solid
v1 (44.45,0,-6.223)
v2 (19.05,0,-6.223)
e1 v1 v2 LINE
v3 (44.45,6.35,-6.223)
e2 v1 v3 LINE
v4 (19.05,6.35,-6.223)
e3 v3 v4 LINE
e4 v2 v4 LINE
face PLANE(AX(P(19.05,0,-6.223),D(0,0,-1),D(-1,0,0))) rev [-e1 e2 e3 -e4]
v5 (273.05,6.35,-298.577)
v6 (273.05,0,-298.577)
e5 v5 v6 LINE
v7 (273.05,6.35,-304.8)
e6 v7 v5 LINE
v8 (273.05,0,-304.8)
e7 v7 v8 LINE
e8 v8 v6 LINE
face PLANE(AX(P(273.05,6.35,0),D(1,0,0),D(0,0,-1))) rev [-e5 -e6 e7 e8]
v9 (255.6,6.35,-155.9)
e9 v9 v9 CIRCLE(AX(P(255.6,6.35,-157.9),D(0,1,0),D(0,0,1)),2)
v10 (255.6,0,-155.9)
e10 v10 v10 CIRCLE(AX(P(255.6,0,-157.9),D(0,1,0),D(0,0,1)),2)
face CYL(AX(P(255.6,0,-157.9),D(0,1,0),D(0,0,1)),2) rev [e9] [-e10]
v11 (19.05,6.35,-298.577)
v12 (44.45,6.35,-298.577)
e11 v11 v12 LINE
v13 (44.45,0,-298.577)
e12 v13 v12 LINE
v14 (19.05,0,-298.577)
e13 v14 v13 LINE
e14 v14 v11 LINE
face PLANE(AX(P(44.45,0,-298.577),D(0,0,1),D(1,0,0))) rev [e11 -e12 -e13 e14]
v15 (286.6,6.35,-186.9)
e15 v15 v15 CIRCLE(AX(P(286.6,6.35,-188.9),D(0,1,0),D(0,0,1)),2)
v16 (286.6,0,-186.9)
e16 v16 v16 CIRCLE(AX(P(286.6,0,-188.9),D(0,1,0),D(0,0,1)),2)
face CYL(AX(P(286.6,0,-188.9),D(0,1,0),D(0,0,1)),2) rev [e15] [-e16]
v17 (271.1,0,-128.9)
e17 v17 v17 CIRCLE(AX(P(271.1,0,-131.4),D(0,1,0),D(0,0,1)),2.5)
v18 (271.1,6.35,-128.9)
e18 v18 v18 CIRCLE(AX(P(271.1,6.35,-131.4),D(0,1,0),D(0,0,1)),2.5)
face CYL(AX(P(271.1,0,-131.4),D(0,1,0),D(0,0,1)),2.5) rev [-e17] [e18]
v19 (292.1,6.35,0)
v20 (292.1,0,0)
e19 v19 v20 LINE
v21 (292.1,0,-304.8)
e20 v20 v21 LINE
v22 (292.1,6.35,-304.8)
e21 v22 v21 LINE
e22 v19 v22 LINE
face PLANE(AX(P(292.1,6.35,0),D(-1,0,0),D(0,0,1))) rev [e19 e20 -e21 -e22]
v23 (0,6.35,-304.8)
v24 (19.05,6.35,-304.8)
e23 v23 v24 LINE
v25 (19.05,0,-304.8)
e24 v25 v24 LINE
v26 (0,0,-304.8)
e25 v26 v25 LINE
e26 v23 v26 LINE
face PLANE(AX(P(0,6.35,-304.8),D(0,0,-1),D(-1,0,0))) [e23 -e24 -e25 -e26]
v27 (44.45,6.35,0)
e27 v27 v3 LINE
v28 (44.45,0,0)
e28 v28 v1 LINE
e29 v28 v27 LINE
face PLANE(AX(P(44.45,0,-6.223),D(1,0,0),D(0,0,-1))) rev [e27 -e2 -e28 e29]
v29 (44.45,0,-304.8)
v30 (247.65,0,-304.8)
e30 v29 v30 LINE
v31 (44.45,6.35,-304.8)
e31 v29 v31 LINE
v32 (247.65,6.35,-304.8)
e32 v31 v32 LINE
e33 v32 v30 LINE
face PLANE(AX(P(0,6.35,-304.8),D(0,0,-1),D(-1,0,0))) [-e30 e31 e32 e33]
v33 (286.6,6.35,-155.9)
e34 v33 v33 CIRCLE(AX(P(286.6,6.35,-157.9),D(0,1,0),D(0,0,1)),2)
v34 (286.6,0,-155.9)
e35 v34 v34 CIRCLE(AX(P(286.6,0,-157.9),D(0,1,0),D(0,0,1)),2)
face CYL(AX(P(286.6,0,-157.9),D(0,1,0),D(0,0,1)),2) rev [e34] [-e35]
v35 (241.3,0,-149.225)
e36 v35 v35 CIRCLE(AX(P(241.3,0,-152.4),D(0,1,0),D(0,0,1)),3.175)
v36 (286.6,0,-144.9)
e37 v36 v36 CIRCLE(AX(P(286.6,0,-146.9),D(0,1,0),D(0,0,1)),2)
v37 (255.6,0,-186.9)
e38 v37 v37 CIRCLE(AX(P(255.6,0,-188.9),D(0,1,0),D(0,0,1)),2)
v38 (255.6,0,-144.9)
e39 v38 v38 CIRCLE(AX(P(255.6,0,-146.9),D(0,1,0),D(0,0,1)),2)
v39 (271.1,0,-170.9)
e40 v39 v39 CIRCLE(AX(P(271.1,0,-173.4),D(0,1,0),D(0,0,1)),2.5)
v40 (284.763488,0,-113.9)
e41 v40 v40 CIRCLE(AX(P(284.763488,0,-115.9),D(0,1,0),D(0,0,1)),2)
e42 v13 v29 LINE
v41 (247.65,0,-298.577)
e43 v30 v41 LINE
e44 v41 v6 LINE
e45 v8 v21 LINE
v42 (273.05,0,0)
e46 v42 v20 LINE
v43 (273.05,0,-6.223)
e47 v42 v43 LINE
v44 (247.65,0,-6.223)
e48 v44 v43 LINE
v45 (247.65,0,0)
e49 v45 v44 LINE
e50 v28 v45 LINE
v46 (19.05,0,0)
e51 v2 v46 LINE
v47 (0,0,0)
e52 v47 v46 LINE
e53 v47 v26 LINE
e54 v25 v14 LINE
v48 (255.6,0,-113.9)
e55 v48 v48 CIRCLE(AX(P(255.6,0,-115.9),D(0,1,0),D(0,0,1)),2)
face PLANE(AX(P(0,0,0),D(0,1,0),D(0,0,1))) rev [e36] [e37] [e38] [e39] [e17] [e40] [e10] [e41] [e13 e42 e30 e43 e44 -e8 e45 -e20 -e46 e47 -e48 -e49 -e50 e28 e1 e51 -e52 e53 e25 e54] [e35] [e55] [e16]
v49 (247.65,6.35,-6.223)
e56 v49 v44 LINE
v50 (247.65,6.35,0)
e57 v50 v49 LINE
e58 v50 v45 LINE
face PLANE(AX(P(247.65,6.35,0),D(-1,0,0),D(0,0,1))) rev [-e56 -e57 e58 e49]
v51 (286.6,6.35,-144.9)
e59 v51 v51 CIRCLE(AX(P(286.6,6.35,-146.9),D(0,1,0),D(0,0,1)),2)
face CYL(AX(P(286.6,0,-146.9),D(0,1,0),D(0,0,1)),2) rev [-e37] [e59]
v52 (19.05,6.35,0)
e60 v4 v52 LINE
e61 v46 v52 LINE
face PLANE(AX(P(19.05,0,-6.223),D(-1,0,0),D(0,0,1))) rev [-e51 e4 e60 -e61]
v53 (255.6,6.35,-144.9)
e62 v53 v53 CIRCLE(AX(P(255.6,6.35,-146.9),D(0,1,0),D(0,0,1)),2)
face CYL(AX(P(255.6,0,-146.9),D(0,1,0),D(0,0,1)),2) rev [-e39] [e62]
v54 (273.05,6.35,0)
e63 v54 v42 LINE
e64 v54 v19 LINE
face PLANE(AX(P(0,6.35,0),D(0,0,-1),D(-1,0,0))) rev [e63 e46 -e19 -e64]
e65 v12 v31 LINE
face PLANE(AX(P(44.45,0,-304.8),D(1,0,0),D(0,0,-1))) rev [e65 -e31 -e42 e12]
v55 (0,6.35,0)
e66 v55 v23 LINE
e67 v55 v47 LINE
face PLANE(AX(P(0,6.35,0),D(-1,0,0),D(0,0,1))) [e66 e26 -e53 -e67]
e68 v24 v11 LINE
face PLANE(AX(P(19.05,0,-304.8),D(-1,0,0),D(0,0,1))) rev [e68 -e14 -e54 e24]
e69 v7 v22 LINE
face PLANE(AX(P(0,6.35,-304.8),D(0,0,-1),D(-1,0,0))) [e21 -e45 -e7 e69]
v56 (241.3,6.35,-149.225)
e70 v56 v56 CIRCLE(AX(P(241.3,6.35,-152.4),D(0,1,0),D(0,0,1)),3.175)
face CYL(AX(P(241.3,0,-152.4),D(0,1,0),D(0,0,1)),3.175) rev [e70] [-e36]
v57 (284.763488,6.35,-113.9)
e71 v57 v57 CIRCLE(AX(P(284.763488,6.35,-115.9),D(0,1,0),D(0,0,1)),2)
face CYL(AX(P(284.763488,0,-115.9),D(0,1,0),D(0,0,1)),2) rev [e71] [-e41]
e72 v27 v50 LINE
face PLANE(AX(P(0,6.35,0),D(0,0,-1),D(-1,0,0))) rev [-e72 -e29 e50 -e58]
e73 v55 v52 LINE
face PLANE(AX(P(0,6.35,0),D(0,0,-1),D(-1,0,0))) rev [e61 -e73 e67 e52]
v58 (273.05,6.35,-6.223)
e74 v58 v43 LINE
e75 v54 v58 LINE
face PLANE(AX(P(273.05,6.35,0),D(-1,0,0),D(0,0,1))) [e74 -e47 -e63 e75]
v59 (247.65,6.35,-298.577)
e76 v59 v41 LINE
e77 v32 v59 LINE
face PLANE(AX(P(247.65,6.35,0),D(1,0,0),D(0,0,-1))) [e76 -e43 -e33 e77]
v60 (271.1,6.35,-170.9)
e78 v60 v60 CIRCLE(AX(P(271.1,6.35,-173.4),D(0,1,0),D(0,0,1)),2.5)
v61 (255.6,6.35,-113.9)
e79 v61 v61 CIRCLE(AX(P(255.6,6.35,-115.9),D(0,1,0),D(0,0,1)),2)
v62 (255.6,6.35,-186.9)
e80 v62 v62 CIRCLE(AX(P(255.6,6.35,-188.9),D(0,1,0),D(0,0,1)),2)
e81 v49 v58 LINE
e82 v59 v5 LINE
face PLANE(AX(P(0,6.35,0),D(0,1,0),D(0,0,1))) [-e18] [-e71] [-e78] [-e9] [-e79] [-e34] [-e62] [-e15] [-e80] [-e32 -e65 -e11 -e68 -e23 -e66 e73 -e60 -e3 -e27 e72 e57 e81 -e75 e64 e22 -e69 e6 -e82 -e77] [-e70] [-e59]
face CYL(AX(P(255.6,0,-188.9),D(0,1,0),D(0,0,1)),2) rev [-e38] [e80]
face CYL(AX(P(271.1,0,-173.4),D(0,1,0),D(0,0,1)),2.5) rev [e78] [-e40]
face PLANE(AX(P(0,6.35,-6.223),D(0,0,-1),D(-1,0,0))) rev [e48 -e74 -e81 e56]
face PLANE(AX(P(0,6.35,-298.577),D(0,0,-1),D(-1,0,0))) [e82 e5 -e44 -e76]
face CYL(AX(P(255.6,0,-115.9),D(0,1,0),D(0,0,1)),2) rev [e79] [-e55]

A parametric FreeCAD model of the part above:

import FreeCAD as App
import Part
import Sketcher
from FreeCAD import Vector
Q = App.Units.Quantity


def add_polygon(sketch, points):
    """Adds a closed chain of lines whose ends are joined by coincident constraints."""
    first, n = sketch.GeometryCount, len(points)
    for a, b in zip(points, points[1:] + points[:1]):
        sketch.addGeometry(Part.LineSegment(App.Vector(*a, 0), App.Vector(*b, 0)), False)
    for i in range(n):
        sketch.addConstraint(Sketcher.Constraint("Coincident", first + i, 2, first + (i + 1) % n, 1))

doc = App.newDocument("Part")
body = doc.addObject("PartDesign::Body", "Body")

sketch1 = body.newObject("Sketcher::SketchObject", "Sketch")
sketch1.AttachmentSupport = (doc.getObject("XZ_Plane"), [""])
sketch1.MapMode = "FlatFace"
add_polygon(sketch1, [(292, 0), (292, -305), (273, -305), (273, -299), (248, -299), (248, -305), (0, -305), (0, 0), (248, 0), (248, -6), (273, -6), (273, 0)])
add_polygon(sketch1, [(229, -13), (13, -13), (13, -292), (229, -292)])
sketch1.addConstraint(Sketcher.Constraint("Vertical", 0))
sketch1.addConstraint(Sketcher.Constraint("Horizontal", 1))
sketch1.addConstraint(Sketcher.Constraint("Vertical", 2))
sketch1.addConstraint(Sketcher.Constraint("Horizontal", 3))
sketch1.addConstraint(Sketcher.Constraint("Vertical", 4))
sketch1.addConstraint(Sketcher.Constraint("Horizontal", 5))
sketch1.addConstraint(Sketcher.Constraint("Vertical", 6))
sketch1.addConstraint(Sketcher.Constraint("Horizontal", 7))
sketch1.addConstraint(Sketcher.Constraint("Vertical", 8))
sketch1.addConstraint(Sketcher.Constraint("Horizontal", 9))
sketch1.addConstraint(Sketcher.Constraint("Vertical", 10))
sketch1.addConstraint(Sketcher.Constraint("Horizontal", 11))
sketch1.addConstraint(Sketcher.Constraint("Horizontal", 12))
sketch1.addConstraint(Sketcher.Constraint("Vertical", 13))
sketch1.addConstraint(Sketcher.Constraint("Horizontal", 14))
sketch1.addConstraint(Sketcher.Constraint("Vertical", 15))
sketch1.addConstraint(Sketcher.Constraint("Coincident", 6, 2, -1, 1))
sketch1.addConstraint(Sketcher.Constraint("PointOnObject", 10, 2, -1))
sketch1.addConstraint(Sketcher.Constraint("Horizontal", 1, 2, 4, 2))
sketch1.addConstraint(Sketcher.Constraint("Vertical", 4, 2, 7, 2))
sketch1.addConstraint(Sketcher.Constraint("Vertical", 2, 2, 9, 2))
sketch1.addConstraint(Sketcher.Constraint("Equal", 4, 8))
sketch1.addConstraint(Sketcher.Constraint("DistanceX", 3, 2, 3, 1, Q("1 in")))
sketch1.addConstraint(Sketcher.Constraint("DistanceY", 0, 2, 0, 1, Q("12 in")))
sketch1.addConstraint(Sketcher.Constraint("DistanceY", 13, 2, 13, 1, Q("11 in")))
sketch1.addConstraint(Sketcher.Constraint("DistanceX", 12, 2, 12, 1, Q("8.5 in")))
sketch1.addConstraint(Sketcher.Constraint("DistanceX", -1, 1, 14, 2, Q("9 in")))
sketch1.addConstraint(Sketcher.Constraint("DistanceX", 1, 2, 1, 1, Q("0.75 in")))
sketch1.addConstraint(Sketcher.Constraint("DistanceX", 5, 2, 5, 1, Q("9.75 in")))
sketch1.addConstraint(Sketcher.Constraint("DistanceY", 12, 2, -1, 1, Q("0.5 in")))
sketch1.addConstraint(Sketcher.Constraint("DistanceY", 2, 1, 2, 2, Q("0.245 in")))
pad1 = body.newObject("PartDesign::Pad", "Pad")
pad1.Profile = sketch1
pad1.Length = Q("0.25 in")
pad1.Reversed = True

sketch2 = body.newObject("Sketcher::SketchObject", "Sketch001")
sketch2.AttachmentSupport = (doc.getObject("XZ_Plane"), [""])
sketch2.MapMode = "FlatFace"
sketch2.AttachmentOffset = App.Placement(Vector(0, 0, -0.25 * 25.4), App.Rotation())
sketch2.addGeometry(Part.Circle(Vector(286.6, -188.9, 0), Vector(0, 0, 1), 2), False)
sketch2.addGeometry(Part.Circle(Vector(286.6, -157.9, 0), Vector(0, 0, 1), 2), False)
sketch2.addGeometry(Part.Circle(Vector(255.6, -157.9, 0), Vector(0, 0, 1), 2), False)
sketch2.addGeometry(Part.Circle(Vector(255.6, -188.9, 0), Vector(0, 0, 1), 2), False)
sketch2.addGeometry(Part.Circle(Vector(255.6, -146.9, 0), Vector(0, 0, 1), 2), False)
sketch2.addGeometry(Part.Circle(Vector(286.6, -146.9, 0), Vector(0, 0, 1), 2), False)
sketch2.addGeometry(Part.Circle(Vector(284.8, -115.9, 0), Vector(0, 0, 1), 2), False)
sketch2.addGeometry(Part.Circle(Vector(255.6, -115.9, 0), Vector(0, 0, 1), 2), False)
sketch2.addGeometry(Part.Circle(Vector(271.1, -173.4, 0), Vector(0, 0, 1), 2.5), False)
sketch2.addGeometry(Part.Circle(Vector(271.1, -131.4, 0), Vector(0, 0, 1), 2.5), False)
sketch2.addGeometry(Part.Circle(Vector(241.3, -152.4, 0), Vector(0, 0, 1), 3.2), False)
add_polygon(sketch2, [(247.7, -304.8), (247.7, -298.6), (273.1, -298.6), (273.1, -304.8)])
add_polygon(sketch2, [(247.7, -6.2), (247.7, 0), (273.1, 0), (273.1, -6.2)])
add_polygon(sketch2, [(19.1, -6.2), (19.1, 0), (44.5, 0), (44.5, -6.2)])
add_polygon(sketch2, [(19.1, -304.8), (19.1, -298.6), (44.5, -298.6), (44.5, -304.8)])
sketch2.addConstraint(Sketcher.Constraint("Vertical", 11))
sketch2.addConstraint(Sketcher.Constraint("Horizontal", 12))
sketch2.addConstraint(Sketcher.Constraint("Vertical", 13))
sketch2.addConstraint(Sketcher.Constraint("Horizontal", 14))
sketch2.addConstraint(Sketcher.Constraint("Vertical", 15))
sketch2.addConstraint(Sketcher.Constraint("Horizontal", 16))
sketch2.addConstraint(Sketcher.Constraint("Vertical", 17))
sketch2.addConstraint(Sketcher.Constraint("Horizontal", 18))
sketch2.addConstraint(Sketcher.Constraint("Vertical", 19))
sketch2.addConstraint(Sketcher.Constraint("Horizontal", 20))
sketch2.addConstraint(Sketcher.Constraint("Vertical", 21))
sketch2.addConstraint(Sketcher.Constraint("Horizontal", 22))
sketch2.addConstraint(Sketcher.Constraint("Vertical", 23))
sketch2.addConstraint(Sketcher.Constraint("Horizontal", 24))
sketch2.addConstraint(Sketcher.Constraint("Vertical", 25))
sketch2.addConstraint(Sketcher.Constraint("Horizontal", 26))
sketch2.addConstraint(Sketcher.Constraint("Equal", 0, 1))
sketch2.addConstraint(Sketcher.Constraint("Equal", 1, 2))
sketch2.addConstraint(Sketcher.Constraint("Equal", 2, 3))
sketch2.addConstraint(Sketcher.Constraint("Equal", 3, 4))
sketch2.addConstraint(Sketcher.Constraint("Equal", 4, 5))
sketch2.addConstraint(Sketcher.Constraint("Equal", 5, 6))
sketch2.addConstraint(Sketcher.Constraint("Equal", 6, 7))
sketch2.addConstraint(Sketcher.Constraint("Equal", 8, 9))
sketch2.addConstraint(Sketcher.Constraint("PointOnObject", 15, 2, -1))
sketch2.addConstraint(Sketcher.Constraint("PointOnObject", 19, 2, -1))
sketch2.addConstraint(Sketcher.Constraint("Horizontal", 1, 3, 2, 3))
sketch2.addConstraint(Sketcher.Constraint("Horizontal", 0, 3, 3, 3))
sketch2.addConstraint(Sketcher.Constraint("Horizontal", 4, 3, 5, 3))
sketch2.addConstraint(Sketcher.Constraint("Horizontal", 6, 3, 7, 3))
sketch2.addConstraint(Sketcher.Constraint("Horizontal", 18, 2, 21, 2))
sketch2.addConstraint(Sketcher.Constraint("Horizontal", 12, 2, 23, 2))
sketch2.addConstraint(Sketcher.Constraint("Horizontal", 14, 2, 25, 2))
sketch2.addConstraint(Sketcher.Constraint("Vertical", 0, 3, 1, 3))
sketch2.addConstraint(Sketcher.Constraint("Vertical", 2, 3, 3, 3))
sketch2.addConstraint(Sketcher.Constraint("Vertical", 3, 3, 4, 3))
sketch2.addConstraint(Sketcher.Constraint("Vertical", 1, 3, 5, 3))
sketch2.addConstraint(Sketcher.Constraint("Vertical", 4, 3, 7, 3))
sketch2.addConstraint(Sketcher.Constraint("Vertical", 8, 3, 9, 3))
sketch2.addConstraint(Sketcher.Constraint("Vertical", 14, 2, 15, 2))
sketch2.addConstraint(Sketcher.Constraint("Vertical", 13, 2, 16, 2))
sketch2.addConstraint(Sketcher.Constraint("Vertical", 22, 2, 23, 2))
sketch2.addConstraint(Sketcher.Constraint("Vertical", 21, 2, 24, 2))
sketch2.addConstraint(Sketcher.Constraint("Equal", 18, 20))
sketch2.addConstraint(Sketcher.Constraint("Equal", 13, 15))
sketch2.addConstraint(Sketcher.Constraint("Diameter", 10, Q("0.25 in")))
sketch2.addConstraint(Sketcher.Constraint("DistanceX", 12, 1, 12, 2, Q("1 in")))
sketch2.addConstraint(Sketcher.Constraint("DistanceY", 10, 3, -1, 1, Q("6 in")))
sketch2.addConstraint(Sketcher.Constraint("DistanceY", 13, 2, -1, 1, Q("12 in")))
sketch2.addConstraint(Sketcher.Constraint("DistanceX", 19, 2, 15, 2, Q("9 in")))
sketch2.addConstraint(Sketcher.Constraint("DistanceX", -1, 1, 10, 3, Q("9.5 in")))
sketch2.addConstraint(Sketcher.Constraint("Diameter", 0, Q("4 mm")))
sketch2.addConstraint(Sketcher.Constraint("Diameter", 8, Q("5 mm")))
sketch2.addConstraint(Sketcher.Constraint("DistanceY", 11, 1, 11, 2, Q("0.245 in")))
sketch2.addConstraint(Sketcher.Constraint("DistanceX", -1, 1, 11, 2, Q("9.75 in")))
sketch2.addConstraint(Sketcher.Constraint("DistanceX", -1, 1, 0, 3, Q("286.6 mm")))
sketch2.addConstraint(Sketcher.Constraint("DistanceY", 0, 3, -1, 1, Q("188.9 mm")))
sketch2.addConstraint(Sketcher.Constraint("DistanceY", 1, 3, -1, 1, Q("157.9 mm")))
sketch2.addConstraint(Sketcher.Constraint("DistanceX", -1, 1, 2, 3, Q("255.6 mm")))
sketch2.addConstraint(Sketcher.Constraint("DistanceY", 4, 3, -1, 1, Q("146.9 mm")))
sketch2.addConstraint(Sketcher.Constraint("DistanceY", 6, 3, -1, 1, Q("115.9 mm")))
sketch2.addConstraint(Sketcher.Constraint("DistanceX", -1, 1, 8, 3, Q("271.1 mm")))
sketch2.addConstraint(Sketcher.Constraint("DistanceY", 8, 3, -1, 1, Q("173.4 mm")))
sketch2.addConstraint(Sketcher.Constraint("DistanceY", 9, 3, -1, 1, Q("131.4 mm")))
sketch2.addConstraint(Sketcher.Constraint("DistanceX", -1, 1, 6, 3, Q("284.763488 mm")))
pocket1 = body.newObject("PartDesign::Pocket", "Pocket")
pocket1.Profile = sketch2
pocket1.Type = "ThroughAll"
pocket1.Reversed = True

sketch3 = body.newObject("Sketcher::SketchObject", "Sketch002")
sketch3.AttachmentSupport = (doc.getObject("XZ_Plane"), [""])
sketch3.MapMode = "FlatFace"
sketch3.AttachmentOffset = App.Placement(Vector(0, 0, -0.25 * 25.4), App.Rotation())
add_polygon(sketch3, [(13, -292), (13, -13), (229, -13), (229, -292)])
sketch3.addConstraint(Sketcher.Constraint("Vertical", 0))
sketch3.addConstraint(Sketcher.Constraint("Horizontal", 1))
sketch3.addConstraint(Sketcher.Constraint("Vertical", 2))
sketch3.addConstraint(Sketcher.Constraint("Horizontal", 3))
sketch3.addConstraint(Sketcher.Constraint("DistanceY", 0, 1, 0, 2, Q("11 in")))
sketch3.addConstraint(Sketcher.Constraint("DistanceX", 1, 1, 1, 2, Q("8.5 in")))
sketch3.addConstraint(Sketcher.Constraint("DistanceX", -1, 1, 1, 2, Q("9 in")))
sketch3.addConstraint(Sketcher.Constraint("DistanceY", 0, 2, -1, 1, Q("0.5 in")))
pad2 = body.newObject("PartDesign::Pad", "Pad001")
pad2.Profile = sketch3
pad2.Length = Q("0.25 in")

doc.recompute()
